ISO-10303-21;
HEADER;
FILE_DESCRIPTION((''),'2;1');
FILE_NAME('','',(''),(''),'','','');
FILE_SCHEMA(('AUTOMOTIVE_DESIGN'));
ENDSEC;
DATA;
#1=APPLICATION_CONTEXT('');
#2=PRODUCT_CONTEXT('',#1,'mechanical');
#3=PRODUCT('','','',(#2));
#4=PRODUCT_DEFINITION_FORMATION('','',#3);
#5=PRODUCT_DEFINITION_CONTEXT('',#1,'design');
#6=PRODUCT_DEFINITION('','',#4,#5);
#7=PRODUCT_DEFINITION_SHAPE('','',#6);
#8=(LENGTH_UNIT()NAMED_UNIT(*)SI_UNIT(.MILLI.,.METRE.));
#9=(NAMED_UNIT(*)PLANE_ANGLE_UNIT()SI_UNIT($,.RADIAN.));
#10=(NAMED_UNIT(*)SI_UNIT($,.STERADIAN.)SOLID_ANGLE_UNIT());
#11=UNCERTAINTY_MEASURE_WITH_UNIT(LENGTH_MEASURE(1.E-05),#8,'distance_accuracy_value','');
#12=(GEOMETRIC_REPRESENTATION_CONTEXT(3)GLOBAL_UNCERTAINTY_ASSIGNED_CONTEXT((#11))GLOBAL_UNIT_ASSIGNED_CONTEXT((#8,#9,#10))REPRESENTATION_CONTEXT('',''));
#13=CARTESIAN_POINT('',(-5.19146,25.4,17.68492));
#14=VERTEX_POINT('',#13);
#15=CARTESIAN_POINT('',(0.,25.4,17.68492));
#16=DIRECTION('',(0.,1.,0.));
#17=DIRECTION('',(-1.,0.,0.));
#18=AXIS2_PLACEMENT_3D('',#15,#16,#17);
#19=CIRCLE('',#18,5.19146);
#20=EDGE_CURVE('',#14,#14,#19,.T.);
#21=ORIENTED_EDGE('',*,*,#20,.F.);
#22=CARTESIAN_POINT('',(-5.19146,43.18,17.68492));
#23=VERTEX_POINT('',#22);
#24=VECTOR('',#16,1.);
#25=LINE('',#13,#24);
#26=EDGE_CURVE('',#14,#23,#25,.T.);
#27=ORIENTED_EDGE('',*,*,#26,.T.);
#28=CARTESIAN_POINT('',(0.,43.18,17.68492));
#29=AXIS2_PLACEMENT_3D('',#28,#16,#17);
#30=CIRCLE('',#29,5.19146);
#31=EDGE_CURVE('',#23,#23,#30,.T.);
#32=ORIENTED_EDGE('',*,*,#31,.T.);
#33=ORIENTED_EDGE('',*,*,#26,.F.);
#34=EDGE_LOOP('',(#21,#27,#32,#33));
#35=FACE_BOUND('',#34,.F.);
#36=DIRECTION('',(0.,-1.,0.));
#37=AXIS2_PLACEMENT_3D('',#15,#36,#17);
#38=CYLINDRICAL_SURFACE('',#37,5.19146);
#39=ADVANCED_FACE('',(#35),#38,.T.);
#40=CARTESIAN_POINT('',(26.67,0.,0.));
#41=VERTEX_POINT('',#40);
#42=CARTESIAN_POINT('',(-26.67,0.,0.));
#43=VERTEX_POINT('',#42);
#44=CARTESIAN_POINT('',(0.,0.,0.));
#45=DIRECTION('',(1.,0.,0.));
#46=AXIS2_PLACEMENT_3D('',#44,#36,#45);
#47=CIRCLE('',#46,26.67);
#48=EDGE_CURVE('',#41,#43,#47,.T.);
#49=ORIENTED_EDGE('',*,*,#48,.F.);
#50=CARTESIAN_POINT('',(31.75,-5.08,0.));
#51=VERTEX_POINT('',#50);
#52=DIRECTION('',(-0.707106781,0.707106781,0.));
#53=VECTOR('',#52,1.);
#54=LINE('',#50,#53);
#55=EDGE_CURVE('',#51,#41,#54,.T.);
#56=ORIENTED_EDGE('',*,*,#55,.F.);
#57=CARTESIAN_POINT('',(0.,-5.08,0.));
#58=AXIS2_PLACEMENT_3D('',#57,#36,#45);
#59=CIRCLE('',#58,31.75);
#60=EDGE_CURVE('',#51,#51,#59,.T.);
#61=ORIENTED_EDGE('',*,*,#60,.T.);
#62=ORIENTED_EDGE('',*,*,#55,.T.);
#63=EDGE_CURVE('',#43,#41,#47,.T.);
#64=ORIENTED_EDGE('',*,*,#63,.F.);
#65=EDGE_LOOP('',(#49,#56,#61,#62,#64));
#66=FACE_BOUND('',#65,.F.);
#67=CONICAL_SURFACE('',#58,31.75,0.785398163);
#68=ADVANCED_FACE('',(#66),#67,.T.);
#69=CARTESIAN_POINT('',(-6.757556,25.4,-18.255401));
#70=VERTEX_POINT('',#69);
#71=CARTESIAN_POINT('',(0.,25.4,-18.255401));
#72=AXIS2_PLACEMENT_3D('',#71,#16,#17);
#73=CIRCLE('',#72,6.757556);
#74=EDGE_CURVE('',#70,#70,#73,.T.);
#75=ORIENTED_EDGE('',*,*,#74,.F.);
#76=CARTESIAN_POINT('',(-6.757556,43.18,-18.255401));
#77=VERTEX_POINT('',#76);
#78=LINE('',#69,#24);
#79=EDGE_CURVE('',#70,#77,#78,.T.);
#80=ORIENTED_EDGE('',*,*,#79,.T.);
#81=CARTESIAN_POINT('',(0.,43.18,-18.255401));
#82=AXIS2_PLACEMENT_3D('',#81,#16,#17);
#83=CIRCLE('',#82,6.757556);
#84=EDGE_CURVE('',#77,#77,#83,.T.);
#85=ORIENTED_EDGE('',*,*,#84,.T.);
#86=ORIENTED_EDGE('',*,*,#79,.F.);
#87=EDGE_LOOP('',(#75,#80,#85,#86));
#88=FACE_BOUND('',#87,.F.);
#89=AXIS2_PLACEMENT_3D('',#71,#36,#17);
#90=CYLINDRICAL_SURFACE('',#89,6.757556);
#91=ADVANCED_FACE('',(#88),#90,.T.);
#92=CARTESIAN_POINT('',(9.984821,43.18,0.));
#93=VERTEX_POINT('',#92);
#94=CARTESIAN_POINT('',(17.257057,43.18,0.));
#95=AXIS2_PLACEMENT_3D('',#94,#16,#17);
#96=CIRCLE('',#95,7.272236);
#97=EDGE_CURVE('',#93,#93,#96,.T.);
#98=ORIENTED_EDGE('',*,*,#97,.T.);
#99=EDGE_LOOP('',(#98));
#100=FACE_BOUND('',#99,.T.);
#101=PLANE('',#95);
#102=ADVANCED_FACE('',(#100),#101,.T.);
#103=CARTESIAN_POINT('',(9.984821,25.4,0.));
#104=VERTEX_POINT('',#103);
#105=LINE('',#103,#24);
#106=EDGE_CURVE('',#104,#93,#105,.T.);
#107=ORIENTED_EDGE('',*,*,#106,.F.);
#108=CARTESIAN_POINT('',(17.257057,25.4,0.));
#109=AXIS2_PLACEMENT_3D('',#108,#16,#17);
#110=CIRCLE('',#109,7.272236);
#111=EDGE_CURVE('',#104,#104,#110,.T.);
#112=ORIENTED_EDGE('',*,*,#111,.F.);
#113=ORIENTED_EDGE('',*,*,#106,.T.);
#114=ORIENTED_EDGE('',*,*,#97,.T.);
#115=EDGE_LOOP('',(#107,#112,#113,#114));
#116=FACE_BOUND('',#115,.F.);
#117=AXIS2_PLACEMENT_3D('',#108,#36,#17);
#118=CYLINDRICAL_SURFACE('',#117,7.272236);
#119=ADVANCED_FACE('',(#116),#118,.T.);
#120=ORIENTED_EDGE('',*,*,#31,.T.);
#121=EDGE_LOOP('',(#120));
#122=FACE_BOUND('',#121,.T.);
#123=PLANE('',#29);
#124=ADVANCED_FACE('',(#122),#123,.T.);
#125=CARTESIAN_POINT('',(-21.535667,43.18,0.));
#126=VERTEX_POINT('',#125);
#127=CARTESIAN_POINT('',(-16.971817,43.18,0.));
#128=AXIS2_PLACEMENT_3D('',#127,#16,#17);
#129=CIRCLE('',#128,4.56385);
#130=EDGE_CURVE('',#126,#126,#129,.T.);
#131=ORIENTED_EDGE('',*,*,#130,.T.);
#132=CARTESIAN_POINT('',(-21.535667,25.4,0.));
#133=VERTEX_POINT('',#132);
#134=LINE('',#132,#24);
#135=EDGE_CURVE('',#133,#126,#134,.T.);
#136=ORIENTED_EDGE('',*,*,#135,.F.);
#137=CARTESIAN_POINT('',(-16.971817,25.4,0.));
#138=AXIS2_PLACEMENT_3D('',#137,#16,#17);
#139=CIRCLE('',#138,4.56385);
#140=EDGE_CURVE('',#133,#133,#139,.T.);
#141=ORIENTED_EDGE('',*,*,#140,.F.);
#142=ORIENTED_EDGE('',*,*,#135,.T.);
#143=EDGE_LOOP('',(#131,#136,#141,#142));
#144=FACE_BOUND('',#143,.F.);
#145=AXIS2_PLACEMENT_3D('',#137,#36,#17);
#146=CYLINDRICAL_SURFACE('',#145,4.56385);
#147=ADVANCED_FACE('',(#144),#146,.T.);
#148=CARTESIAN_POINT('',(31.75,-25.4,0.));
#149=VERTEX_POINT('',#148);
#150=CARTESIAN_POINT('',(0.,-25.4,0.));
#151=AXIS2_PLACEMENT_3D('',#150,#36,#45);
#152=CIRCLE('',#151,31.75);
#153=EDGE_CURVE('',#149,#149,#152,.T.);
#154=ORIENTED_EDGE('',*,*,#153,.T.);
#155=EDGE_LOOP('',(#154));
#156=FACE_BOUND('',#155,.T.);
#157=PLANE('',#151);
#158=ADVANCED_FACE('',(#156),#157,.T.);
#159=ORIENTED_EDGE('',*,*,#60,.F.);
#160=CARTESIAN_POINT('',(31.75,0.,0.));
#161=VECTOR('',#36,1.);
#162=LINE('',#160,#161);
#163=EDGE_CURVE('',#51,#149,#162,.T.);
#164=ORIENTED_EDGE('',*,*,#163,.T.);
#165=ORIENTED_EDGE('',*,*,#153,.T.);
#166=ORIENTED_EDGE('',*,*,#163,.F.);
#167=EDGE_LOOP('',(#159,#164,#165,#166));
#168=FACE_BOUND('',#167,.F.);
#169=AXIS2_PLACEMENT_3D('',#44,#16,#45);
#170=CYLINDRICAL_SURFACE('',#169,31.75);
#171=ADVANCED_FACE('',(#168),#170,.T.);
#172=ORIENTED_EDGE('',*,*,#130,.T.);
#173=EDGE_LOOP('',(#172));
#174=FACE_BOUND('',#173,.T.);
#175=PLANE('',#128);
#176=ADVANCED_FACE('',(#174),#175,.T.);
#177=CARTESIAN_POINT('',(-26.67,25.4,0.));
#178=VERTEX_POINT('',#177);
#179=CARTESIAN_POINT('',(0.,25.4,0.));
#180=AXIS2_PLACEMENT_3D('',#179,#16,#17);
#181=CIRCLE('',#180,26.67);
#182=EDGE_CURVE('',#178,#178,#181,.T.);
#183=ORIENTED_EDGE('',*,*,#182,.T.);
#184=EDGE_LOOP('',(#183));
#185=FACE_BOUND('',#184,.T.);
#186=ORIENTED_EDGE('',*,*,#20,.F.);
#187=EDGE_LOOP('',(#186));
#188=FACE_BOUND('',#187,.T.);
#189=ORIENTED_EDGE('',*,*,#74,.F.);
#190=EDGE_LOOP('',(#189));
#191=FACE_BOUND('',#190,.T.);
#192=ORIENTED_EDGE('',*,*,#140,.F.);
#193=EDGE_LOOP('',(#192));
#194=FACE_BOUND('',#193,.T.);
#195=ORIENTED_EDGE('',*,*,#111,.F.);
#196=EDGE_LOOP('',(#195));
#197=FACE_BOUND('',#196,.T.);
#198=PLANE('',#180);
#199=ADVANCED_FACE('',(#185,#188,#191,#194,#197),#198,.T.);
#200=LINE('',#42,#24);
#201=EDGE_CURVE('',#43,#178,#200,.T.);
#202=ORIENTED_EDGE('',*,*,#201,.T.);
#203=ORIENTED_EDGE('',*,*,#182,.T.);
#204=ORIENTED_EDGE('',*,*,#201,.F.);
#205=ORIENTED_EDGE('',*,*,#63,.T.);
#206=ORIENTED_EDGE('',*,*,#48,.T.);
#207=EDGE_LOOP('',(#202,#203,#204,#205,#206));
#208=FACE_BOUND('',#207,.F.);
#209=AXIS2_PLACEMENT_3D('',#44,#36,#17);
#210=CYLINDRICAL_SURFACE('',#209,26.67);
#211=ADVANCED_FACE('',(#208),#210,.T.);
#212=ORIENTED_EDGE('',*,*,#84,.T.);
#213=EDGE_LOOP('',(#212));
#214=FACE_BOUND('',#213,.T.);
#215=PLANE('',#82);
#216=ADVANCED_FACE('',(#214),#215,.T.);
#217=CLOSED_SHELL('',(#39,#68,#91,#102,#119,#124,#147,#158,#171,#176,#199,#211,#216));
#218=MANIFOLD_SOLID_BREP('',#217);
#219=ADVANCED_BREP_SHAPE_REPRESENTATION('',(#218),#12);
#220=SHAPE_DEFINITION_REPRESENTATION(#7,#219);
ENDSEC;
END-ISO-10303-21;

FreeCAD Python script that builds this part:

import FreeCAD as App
import Part
import Sketcher
from FreeCAD import Vector
Q = App.Units.Quantity


def edges_at(feature, points):
    """Names of the edges that pass closest to the given points."""
    edges = feature.Shape.Edges
    near = lambda p: min(range(len(edges)), key=lambda i: edges[i].distToShape(Part.Vertex(*p))[0])
    return sorted({f"Edge{near(p) + 1}" for p in points})

doc = App.newDocument("Part")
params = doc.addObject("Spreadsheet::Sheet", "Params")
for row, (alias, value) in enumerate([
    ("sketch1_diameter", "2.5 in"),
    ("pad1_length", "1 in"),
    ("chamfer_size", "0.2 in"),
    ("sketch2_diameter", "2.1 in"),
    ("pad2_length", "1 in"),
    ("pad3_length", "0.7 in"),
], start=1):
    params.set(f"A{row}", alias)
    params.set(f"B{row}", "=" + value)
    params.setAlias(f"B{row}", alias)

body = doc.addObject("PartDesign::Body", "Body")

# Sketch on XZ plane
sketch1 = doc.addObject("Sketcher::SketchObject", "Sketch")
body.addObject(sketch1)
sketch1.AttachmentSupport = (doc.XZ_Plane, [""])
sketch1.MapMode = "FlatFace"
sketch1.addGeometry(Part.Circle(Vector(0, 0, 0), Vector(0, 0, 1), 32), False)
sketch1.addConstraint(Sketcher.Constraint("Coincident", 0, 3, -1, 1))
sketch1.addConstraint(Sketcher.Constraint("Diameter", 0, Q("2.5 in")))
sketch1.setExpression("Constraints[1]", "Params.sketch1_diameter")
pad1 = doc.addObject("PartDesign::Pad", "Pad")
body.addObject(pad1)
pad1.Profile = sketch1
pad1.setExpression("Length", "Params.pad1_length")
doc.recompute()

chamfer = doc.addObject("PartDesign::Chamfer", "Chamfer")
body.addObject(chamfer)
chamfer.Base = (pad1, edges_at(pad1, [(-31.75, 0, 0)]))
chamfer.setExpression("Size", "Params.chamfer_size")

# Sketch on XZ plane
sketch2 = doc.addObject("Sketcher::SketchObject", "Sketch001")
body.addObject(sketch2)
sketch2.AttachmentSupport = (doc.XZ_Plane, [""])
sketch2.MapMode = "FlatFace"
sketch2.addGeometry(Part.Circle(Vector(0, 0, 0), Vector(0, 0, 1), 27), False)
sketch2.addConstraint(Sketcher.Constraint("Coincident", 0, 3, -1, 1))
sketch2.addConstraint(Sketcher.Constraint("Diameter", 0, Q("2.1 in")))
sketch2.setExpression("Constraints[1]", "Params.sketch2_diameter")
pad2 = doc.addObject("PartDesign::Pad", "Pad001")
body.addObject(pad2)
pad2.Profile = sketch2
pad2.setExpression("Length", "Params.pad2_length")
pad2.Reversed = True

# Sketch on XZ plane
sketch3 = doc.addObject("Sketcher::SketchObject", "Sketch002")
body.addObject(sketch3)
sketch3.AttachmentSupport = (doc.XZ_Plane, [""])
sketch3.MapMode = "FlatFace"
sketch3.AttachmentOffset = App.Placement(Vector(0, 0, -1 * 25.4), App.Rotation())
sketch3.addGeometry(Part.Circle(Vector(0, 17.7, 0), Vector(0, 0, 1), 5.2), False)
sketch3.addGeometry(Part.Circle(Vector(17.3, 0, 0), Vector(0, 0, 1), 7.3), False)
sketch3.addGeometry(Part.Circle(Vector(0, -18.3, 0), Vector(0, 0, 1), 6.8), False)
sketch3.addGeometry(Part.Circle(Vector(-17, 0, 0), Vector(0, 0, 1), 4.6), False)
sketch3.addConstraint(Sketcher.Constraint("PointOnObject", 0, 3, -2))
sketch3.addConstraint(Sketcher.Constraint("PointOnObject", 1, 3, -1))
sketch3.addConstraint(Sketcher.Constraint("PointOnObject", 2, 3, -2))
sketch3.addConstraint(Sketcher.Constraint("PointOnObject", 3, 3, -1))
sketch3.addConstraint(Sketcher.Constraint("Diameter", 3, Q("9.1277 mm")))
sketch3.addConstraint(Sketcher.Constraint("Diameter", 0, Q("10.38292 mm")))
sketch3.addConstraint(Sketcher.Constraint("Diameter", 1, Q("14.544472 mm")))
sketch3.addConstraint(Sketcher.Constraint("Diameter", 2, Q("13.515112 mm")))
sketch3.addConstraint(Sketcher.Constraint("DistanceY", 2, 3, -1, 1, Q("18.255401 mm")))
sketch3.addConstraint(Sketcher.Constraint("DistanceY", -1, 1, 0, 3, Q("17.68492 mm")))
sketch3.addConstraint(Sketcher.Constraint("DistanceX", -1, 1, 1, 3, Q("17.257057 mm")))
sketch3.addConstraint(Sketcher.Constraint("DistanceX", 3, 3, -1, 1, Q("16.971817 mm")))
pad3 = doc.addObject("PartDesign::Pad", "Pad002")
body.addObject(pad3)
pad3.Profile = sketch3
pad3.setExpression("Length", "Params.pad3_length")
pad3.Reversed = True

doc.recompute()
